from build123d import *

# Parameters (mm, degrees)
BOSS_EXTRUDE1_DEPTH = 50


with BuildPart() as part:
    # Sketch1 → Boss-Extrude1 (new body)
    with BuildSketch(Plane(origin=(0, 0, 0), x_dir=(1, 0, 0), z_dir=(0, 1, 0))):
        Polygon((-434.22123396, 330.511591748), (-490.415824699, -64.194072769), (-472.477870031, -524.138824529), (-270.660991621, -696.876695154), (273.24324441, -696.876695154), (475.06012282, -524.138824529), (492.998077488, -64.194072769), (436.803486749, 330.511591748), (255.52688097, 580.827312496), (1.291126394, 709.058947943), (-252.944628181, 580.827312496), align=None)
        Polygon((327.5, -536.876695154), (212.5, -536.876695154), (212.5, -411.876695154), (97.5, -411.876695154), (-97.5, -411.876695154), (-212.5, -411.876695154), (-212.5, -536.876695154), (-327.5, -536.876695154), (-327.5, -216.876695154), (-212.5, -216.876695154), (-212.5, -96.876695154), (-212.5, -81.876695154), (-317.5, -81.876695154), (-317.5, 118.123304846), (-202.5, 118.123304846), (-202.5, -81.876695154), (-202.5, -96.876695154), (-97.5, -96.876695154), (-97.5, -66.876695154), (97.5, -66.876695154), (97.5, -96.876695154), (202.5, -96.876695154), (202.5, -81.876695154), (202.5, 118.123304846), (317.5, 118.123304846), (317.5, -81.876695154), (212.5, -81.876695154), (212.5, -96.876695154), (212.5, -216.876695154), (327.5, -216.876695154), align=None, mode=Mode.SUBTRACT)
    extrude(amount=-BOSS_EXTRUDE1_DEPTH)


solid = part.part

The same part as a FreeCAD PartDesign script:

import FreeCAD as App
import Part
import Sketcher

V = App.Vector


def add_polygon(sketch, points):
    """Adds a closed chain of lines whose ends are joined by coincident constraints."""
    first, n = sketch.GeometryCount, len(points)
    for a, b in zip(points, points[1:] + points[:1]):
        sketch.addGeometry(Part.LineSegment(App.Vector(*a, 0), App.Vector(*b, 0)), False)
    for i in range(n):
        sketch.addConstraint(Sketcher.Constraint("Coincident", first + i, 2, first + (i + 1) % n, 1))

doc = App.newDocument("Part")
body = doc.addObject("PartDesign::Body", "Body")

# Sketch on XZ plane
sketch1 = body.newObject("Sketcher::SketchObject", "Sketch")
sketch1.AttachmentSupport = (doc.getObject("XZ_Plane"), [""])
sketch1.MapMode = "FlatFace"
add_polygon(sketch1, [(-434, -331), (-490, 64), (-472, 524), (-271, 697), (273, 697), (475, 524), (493, 64), (437, -331), (256, -581), (1, -709), (-253, -581)])  # lines 0-10
add_polygon(sketch1, [(328, 217), (328, 537), (212, 537), (212, 412), (-212, 412), (-212, 537), (-328, 537), (-328, 217), (-212, 217), (-212, 82), (-318, 82), (-318, -118), (-202, -118), (-202, 97), (-98, 97), (-98, 67), (98, 67), (98, 97), (202, 97), (202, -118), (318, -118), (318, 82), (212, 82), (212, 217)])  # lines 11-34
sketch1.addConstraint([
    Sketcher.Constraint("Horizontal", 3),
    Sketcher.Constraint("Vertical", 11),
    Sketcher.Constraint("Horizontal", 12),
    Sketcher.Constraint("Vertical", 13),
    Sketcher.Constraint("Horizontal", 14),
    Sketcher.Constraint("Vertical", 15),
    Sketcher.Constraint("Horizontal", 16),
    Sketcher.Constraint("Vertical", 17),
    Sketcher.Constraint("Horizontal", 18),
    Sketcher.Constraint("Vertical", 19),
    Sketcher.Constraint("Horizontal", 20),
    Sketcher.Constraint("Vertical", 21),
    Sketcher.Constraint("Horizontal", 22),
    Sketcher.Constraint("Vertical", 23),
    Sketcher.Constraint("Horizontal", 24),
    Sketcher.Constraint("Vertical", 25),
    Sketcher.Constraint("Horizontal", 26),
    Sketcher.Constraint("Vertical", 27),
    Sketcher.Constraint("Horizontal", 28),
    Sketcher.Constraint("Vertical", 29),
    Sketcher.Constraint("Horizontal", 30),
    Sketcher.Constraint("Vertical", 31),
    Sketcher.Constraint("Horizontal", 32),
    Sketcher.Constraint("Vertical", 33),
    Sketcher.Constraint("Horizontal", 34),
    Sketcher.Constraint("Symmetric", 12, 2, 15, 2, -2),
    Sketcher.Constraint("Symmetric", 24, 2, 27, 2, -2),
    Sketcher.Constraint("Symmetric", 22, 2, 29, 2, -2),
    Sketcher.Constraint("Symmetric", 20, 2, 31, 2, -2),
    Sketcher.Constraint("Symmetric", 18, 2, 33, 2, -2),
    Sketcher.Constraint("Horizontal", 1, 2, 4, 2),
    Sketcher.Constraint("Horizontal", 0, 2, 5, 2),
    Sketcher.Constraint("Horizontal", 7, 2, 9, 2),
    Sketcher.Constraint("Horizontal", 6, 2, 10, 2),
    Sketcher.Constraint("Vertical", 15, 2, 18, 2),
    Sketcher.Constraint("Equal", 12, 16),
    Sketcher.Constraint("Equal", 18, 22),
    Sketcher.Constraint("Equal", 20, 24),
    Sketcher.Constraint("Equal", 2, 4),
    Sketcher.Constraint("Equal", 1, 5),
    Sketcher.Constraint("Equal", 0, 6),
    Sketcher.Constraint("Equal", 8, 9),
    Sketcher.Constraint("Equal", 7, 10),
    Sketcher.Constraint("DistanceX", 12, 2, 12, 1, 115.0),
    Sketcher.Constraint("DistanceX", 14, 2, 14, 1, 425.0),
    Sketcher.Constraint("DistanceX", 20, 2, 20, 1, 105.0),
    Sketcher.Constraint("DistanceY", 11, 1, 11, 2, 320.0),
    Sketcher.Constraint("DistanceY", 13, 2, 13, 1, 125.0),
    Sketcher.Constraint("DistanceY", 19, 2, 19, 1, 135.0),
    Sketcher.Constraint("DistanceY", 21, 2, 21, 1, 200.0),
    Sketcher.Constraint("DistanceY", 23, 1, 23, 2, 215.0),
    Sketcher.Constraint("DistanceY", 25, 2, 25, 1, 30.0),
    Sketcher.Constraint("DistanceY", 11, 2, 3, 2, 160.0),
    Sketcher.Constraint("Distance", 1, 460.294411),
    Sketcher.Constraint("Distance", 2, 265.64718),
    Sketcher.Constraint("DistanceX", 3, 1, 3, 2, 543.904236),
    Sketcher.Constraint("DistanceX", 1, 2, -1, 1, 472.47787),
    Sketcher.Constraint("DistanceX", 2, 2, -1, 1, 270.660992),
    Sketcher.Constraint("DistanceY", 6, 2, -1, 1, 330.511592),
    Sketcher.Constraint("DistanceX", -1, 1, 7, 2, 255.526881),
    Sketcher.Constraint("DistanceY", 0, 2, 1, 2, 459.944752),
    Sketcher.Constraint("DistanceX", 6, 2, 5, 2, 56.194591),
    Sketcher.Constraint("DistanceY", 7, 2, 6, 2, 250.315721),
    Sketcher.Constraint("DistanceY", 8, 2, 0, 2, 773.253021),
    Sketcher.Constraint("Distance", 0, 398.685833),
])
pad1 = body.newObject("PartDesign::Pad", "Pad")
pad1.Profile = sketch1
pad1.Length = 50

doc.recompute()
